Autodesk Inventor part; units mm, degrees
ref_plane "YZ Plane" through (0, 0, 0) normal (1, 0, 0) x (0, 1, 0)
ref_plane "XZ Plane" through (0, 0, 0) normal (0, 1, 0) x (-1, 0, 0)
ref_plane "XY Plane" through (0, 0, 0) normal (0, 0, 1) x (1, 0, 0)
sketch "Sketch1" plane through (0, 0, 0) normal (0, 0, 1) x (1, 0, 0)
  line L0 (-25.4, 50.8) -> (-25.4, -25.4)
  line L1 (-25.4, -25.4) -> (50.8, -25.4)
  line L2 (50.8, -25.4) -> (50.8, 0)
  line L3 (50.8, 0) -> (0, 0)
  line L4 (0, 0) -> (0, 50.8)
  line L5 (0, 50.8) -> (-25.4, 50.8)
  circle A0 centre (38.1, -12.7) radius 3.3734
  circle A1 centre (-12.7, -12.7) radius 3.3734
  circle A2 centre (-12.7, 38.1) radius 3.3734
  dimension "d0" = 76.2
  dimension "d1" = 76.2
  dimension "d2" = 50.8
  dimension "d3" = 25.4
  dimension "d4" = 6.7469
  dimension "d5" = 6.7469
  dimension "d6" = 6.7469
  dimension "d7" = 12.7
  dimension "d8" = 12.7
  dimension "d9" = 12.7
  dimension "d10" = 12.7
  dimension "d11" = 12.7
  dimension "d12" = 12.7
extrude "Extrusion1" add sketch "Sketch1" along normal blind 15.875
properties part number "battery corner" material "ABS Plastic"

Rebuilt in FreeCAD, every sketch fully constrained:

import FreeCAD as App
import Part
import Sketcher
Q = App.Units.Quantity

doc = App.newDocument("Part")
params = doc.addObject("Spreadsheet::Sheet", "Params")
for row, (alias, value) in enumerate([
    ("sketch1_width", "1 in"),
    ("sketch1_width2", "3 in"),
    ("sketch1_diameter", "0.265622 in"),
    ("pad1_length", "0.625 in"),
], start=1):
    params.set(f"A{row}", alias)
    params.set(f"B{row}", "=" + value)
    params.setAlias(f"B{row}", alias)

body = doc.addObject("PartDesign::Body", "Body")

sketch1 = body.newObject("Sketcher::SketchObject", "Sketch")
sketch1.AttachmentSupport = (doc.getObject("XY_Plane"), [""])
sketch1.MapMode = "FlatFace"
sketch1.addGeometry([
    Part.LineSegment(App.Vector(0, 50.8, 0), App.Vector(-25.4, 50.8, 0)),
    Part.LineSegment(App.Vector(-25.4, 50.8, 0), App.Vector(-25.4, -25.4, 0)),
    Part.LineSegment(App.Vector(-25.4, -25.4, 0), App.Vector(50.8, -25.4, 0)),
    Part.LineSegment(App.Vector(50.8, -25.4, 0), App.Vector(50.8, 0, 0)),
    Part.LineSegment(App.Vector(50.8, 0, 0), App.Vector(0, 0, 0)),
    Part.LineSegment(App.Vector(0, 0, 0), App.Vector(0, 50.8, 0)),
    Part.Circle(App.Vector(-12.7, -12.7, 0), App.Vector(0, 0, 1), 3.4),
    Part.Circle(App.Vector(38.1, -12.7, 0), App.Vector(0, 0, 1), 3.4),
    Part.Circle(App.Vector(-12.7, 38.1, 0), App.Vector(0, 0, 1), 3.4),
], False)
sketch1.addConstraint([
    Sketcher.Constraint("Coincident", 0, 2, 1, 1),
    Sketcher.Constraint("Coincident", 1, 2, 2, 1),
    Sketcher.Constraint("Coincident", 2, 2, 3, 1),
    Sketcher.Constraint("Coincident", 3, 2, 4, 1),
    Sketcher.Constraint("Coincident", 4, 2, 5, 1),
    Sketcher.Constraint("Coincident", 5, 2, 0, 1),
    Sketcher.Constraint("Horizontal", 0),
    Sketcher.Constraint("Vertical", 1),
    Sketcher.Constraint("Horizontal", 2),
    Sketcher.Constraint("Vertical", 3),
    Sketcher.Constraint("Horizontal", 4),
    Sketcher.Constraint("Vertical", 5),
    Sketcher.Constraint("Coincident", 4, 2, -1, 1),
    Sketcher.Constraint("Equal", 6, 7),
    Sketcher.Constraint("Equal", 7, 8),
    Sketcher.Constraint("Horizontal", 6, 3, 7, 3),
    Sketcher.Constraint("Vertical", 6, 3, 8, 3),
    Sketcher.Constraint("Equal", 2, 1),
    Sketcher.Constraint("Equal", 0, 3),
    Sketcher.Constraint("DistanceX", 0, 2, 0, 1, Q("1 in")),
    Sketcher.Constraint("DistanceX", 2, 1, 2, 2, Q("3 in")),
    Sketcher.Constraint("Diameter", 6, Q("0.265622 in")),
    Sketcher.Constraint("DistanceX", 6, 3, 7, 3, Q("2 in")),
    Sketcher.Constraint("DistanceY", 6, 3, 8, 3, Q("2 in")),
    Sketcher.Constraint("DistanceX", 6, 3, -1, 1, Q("0.5 in")),
    Sketcher.Constraint("DistanceY", 6, 3, -1, 1, Q("0.5 in")),
])
sketch1.setExpression("Constraints[19]", "Params.sketch1_width")
sketch1.setExpression("Constraints[20]", "Params.sketch1_width2")
sketch1.setExpression("Constraints[21]", "Params.sketch1_diameter")
pad1 = body.newObject("PartDesign::Pad", "Pad")
pad1.Profile = sketch1
pad1.setExpression("Length", "Params.pad1_length")

doc.recompute()
